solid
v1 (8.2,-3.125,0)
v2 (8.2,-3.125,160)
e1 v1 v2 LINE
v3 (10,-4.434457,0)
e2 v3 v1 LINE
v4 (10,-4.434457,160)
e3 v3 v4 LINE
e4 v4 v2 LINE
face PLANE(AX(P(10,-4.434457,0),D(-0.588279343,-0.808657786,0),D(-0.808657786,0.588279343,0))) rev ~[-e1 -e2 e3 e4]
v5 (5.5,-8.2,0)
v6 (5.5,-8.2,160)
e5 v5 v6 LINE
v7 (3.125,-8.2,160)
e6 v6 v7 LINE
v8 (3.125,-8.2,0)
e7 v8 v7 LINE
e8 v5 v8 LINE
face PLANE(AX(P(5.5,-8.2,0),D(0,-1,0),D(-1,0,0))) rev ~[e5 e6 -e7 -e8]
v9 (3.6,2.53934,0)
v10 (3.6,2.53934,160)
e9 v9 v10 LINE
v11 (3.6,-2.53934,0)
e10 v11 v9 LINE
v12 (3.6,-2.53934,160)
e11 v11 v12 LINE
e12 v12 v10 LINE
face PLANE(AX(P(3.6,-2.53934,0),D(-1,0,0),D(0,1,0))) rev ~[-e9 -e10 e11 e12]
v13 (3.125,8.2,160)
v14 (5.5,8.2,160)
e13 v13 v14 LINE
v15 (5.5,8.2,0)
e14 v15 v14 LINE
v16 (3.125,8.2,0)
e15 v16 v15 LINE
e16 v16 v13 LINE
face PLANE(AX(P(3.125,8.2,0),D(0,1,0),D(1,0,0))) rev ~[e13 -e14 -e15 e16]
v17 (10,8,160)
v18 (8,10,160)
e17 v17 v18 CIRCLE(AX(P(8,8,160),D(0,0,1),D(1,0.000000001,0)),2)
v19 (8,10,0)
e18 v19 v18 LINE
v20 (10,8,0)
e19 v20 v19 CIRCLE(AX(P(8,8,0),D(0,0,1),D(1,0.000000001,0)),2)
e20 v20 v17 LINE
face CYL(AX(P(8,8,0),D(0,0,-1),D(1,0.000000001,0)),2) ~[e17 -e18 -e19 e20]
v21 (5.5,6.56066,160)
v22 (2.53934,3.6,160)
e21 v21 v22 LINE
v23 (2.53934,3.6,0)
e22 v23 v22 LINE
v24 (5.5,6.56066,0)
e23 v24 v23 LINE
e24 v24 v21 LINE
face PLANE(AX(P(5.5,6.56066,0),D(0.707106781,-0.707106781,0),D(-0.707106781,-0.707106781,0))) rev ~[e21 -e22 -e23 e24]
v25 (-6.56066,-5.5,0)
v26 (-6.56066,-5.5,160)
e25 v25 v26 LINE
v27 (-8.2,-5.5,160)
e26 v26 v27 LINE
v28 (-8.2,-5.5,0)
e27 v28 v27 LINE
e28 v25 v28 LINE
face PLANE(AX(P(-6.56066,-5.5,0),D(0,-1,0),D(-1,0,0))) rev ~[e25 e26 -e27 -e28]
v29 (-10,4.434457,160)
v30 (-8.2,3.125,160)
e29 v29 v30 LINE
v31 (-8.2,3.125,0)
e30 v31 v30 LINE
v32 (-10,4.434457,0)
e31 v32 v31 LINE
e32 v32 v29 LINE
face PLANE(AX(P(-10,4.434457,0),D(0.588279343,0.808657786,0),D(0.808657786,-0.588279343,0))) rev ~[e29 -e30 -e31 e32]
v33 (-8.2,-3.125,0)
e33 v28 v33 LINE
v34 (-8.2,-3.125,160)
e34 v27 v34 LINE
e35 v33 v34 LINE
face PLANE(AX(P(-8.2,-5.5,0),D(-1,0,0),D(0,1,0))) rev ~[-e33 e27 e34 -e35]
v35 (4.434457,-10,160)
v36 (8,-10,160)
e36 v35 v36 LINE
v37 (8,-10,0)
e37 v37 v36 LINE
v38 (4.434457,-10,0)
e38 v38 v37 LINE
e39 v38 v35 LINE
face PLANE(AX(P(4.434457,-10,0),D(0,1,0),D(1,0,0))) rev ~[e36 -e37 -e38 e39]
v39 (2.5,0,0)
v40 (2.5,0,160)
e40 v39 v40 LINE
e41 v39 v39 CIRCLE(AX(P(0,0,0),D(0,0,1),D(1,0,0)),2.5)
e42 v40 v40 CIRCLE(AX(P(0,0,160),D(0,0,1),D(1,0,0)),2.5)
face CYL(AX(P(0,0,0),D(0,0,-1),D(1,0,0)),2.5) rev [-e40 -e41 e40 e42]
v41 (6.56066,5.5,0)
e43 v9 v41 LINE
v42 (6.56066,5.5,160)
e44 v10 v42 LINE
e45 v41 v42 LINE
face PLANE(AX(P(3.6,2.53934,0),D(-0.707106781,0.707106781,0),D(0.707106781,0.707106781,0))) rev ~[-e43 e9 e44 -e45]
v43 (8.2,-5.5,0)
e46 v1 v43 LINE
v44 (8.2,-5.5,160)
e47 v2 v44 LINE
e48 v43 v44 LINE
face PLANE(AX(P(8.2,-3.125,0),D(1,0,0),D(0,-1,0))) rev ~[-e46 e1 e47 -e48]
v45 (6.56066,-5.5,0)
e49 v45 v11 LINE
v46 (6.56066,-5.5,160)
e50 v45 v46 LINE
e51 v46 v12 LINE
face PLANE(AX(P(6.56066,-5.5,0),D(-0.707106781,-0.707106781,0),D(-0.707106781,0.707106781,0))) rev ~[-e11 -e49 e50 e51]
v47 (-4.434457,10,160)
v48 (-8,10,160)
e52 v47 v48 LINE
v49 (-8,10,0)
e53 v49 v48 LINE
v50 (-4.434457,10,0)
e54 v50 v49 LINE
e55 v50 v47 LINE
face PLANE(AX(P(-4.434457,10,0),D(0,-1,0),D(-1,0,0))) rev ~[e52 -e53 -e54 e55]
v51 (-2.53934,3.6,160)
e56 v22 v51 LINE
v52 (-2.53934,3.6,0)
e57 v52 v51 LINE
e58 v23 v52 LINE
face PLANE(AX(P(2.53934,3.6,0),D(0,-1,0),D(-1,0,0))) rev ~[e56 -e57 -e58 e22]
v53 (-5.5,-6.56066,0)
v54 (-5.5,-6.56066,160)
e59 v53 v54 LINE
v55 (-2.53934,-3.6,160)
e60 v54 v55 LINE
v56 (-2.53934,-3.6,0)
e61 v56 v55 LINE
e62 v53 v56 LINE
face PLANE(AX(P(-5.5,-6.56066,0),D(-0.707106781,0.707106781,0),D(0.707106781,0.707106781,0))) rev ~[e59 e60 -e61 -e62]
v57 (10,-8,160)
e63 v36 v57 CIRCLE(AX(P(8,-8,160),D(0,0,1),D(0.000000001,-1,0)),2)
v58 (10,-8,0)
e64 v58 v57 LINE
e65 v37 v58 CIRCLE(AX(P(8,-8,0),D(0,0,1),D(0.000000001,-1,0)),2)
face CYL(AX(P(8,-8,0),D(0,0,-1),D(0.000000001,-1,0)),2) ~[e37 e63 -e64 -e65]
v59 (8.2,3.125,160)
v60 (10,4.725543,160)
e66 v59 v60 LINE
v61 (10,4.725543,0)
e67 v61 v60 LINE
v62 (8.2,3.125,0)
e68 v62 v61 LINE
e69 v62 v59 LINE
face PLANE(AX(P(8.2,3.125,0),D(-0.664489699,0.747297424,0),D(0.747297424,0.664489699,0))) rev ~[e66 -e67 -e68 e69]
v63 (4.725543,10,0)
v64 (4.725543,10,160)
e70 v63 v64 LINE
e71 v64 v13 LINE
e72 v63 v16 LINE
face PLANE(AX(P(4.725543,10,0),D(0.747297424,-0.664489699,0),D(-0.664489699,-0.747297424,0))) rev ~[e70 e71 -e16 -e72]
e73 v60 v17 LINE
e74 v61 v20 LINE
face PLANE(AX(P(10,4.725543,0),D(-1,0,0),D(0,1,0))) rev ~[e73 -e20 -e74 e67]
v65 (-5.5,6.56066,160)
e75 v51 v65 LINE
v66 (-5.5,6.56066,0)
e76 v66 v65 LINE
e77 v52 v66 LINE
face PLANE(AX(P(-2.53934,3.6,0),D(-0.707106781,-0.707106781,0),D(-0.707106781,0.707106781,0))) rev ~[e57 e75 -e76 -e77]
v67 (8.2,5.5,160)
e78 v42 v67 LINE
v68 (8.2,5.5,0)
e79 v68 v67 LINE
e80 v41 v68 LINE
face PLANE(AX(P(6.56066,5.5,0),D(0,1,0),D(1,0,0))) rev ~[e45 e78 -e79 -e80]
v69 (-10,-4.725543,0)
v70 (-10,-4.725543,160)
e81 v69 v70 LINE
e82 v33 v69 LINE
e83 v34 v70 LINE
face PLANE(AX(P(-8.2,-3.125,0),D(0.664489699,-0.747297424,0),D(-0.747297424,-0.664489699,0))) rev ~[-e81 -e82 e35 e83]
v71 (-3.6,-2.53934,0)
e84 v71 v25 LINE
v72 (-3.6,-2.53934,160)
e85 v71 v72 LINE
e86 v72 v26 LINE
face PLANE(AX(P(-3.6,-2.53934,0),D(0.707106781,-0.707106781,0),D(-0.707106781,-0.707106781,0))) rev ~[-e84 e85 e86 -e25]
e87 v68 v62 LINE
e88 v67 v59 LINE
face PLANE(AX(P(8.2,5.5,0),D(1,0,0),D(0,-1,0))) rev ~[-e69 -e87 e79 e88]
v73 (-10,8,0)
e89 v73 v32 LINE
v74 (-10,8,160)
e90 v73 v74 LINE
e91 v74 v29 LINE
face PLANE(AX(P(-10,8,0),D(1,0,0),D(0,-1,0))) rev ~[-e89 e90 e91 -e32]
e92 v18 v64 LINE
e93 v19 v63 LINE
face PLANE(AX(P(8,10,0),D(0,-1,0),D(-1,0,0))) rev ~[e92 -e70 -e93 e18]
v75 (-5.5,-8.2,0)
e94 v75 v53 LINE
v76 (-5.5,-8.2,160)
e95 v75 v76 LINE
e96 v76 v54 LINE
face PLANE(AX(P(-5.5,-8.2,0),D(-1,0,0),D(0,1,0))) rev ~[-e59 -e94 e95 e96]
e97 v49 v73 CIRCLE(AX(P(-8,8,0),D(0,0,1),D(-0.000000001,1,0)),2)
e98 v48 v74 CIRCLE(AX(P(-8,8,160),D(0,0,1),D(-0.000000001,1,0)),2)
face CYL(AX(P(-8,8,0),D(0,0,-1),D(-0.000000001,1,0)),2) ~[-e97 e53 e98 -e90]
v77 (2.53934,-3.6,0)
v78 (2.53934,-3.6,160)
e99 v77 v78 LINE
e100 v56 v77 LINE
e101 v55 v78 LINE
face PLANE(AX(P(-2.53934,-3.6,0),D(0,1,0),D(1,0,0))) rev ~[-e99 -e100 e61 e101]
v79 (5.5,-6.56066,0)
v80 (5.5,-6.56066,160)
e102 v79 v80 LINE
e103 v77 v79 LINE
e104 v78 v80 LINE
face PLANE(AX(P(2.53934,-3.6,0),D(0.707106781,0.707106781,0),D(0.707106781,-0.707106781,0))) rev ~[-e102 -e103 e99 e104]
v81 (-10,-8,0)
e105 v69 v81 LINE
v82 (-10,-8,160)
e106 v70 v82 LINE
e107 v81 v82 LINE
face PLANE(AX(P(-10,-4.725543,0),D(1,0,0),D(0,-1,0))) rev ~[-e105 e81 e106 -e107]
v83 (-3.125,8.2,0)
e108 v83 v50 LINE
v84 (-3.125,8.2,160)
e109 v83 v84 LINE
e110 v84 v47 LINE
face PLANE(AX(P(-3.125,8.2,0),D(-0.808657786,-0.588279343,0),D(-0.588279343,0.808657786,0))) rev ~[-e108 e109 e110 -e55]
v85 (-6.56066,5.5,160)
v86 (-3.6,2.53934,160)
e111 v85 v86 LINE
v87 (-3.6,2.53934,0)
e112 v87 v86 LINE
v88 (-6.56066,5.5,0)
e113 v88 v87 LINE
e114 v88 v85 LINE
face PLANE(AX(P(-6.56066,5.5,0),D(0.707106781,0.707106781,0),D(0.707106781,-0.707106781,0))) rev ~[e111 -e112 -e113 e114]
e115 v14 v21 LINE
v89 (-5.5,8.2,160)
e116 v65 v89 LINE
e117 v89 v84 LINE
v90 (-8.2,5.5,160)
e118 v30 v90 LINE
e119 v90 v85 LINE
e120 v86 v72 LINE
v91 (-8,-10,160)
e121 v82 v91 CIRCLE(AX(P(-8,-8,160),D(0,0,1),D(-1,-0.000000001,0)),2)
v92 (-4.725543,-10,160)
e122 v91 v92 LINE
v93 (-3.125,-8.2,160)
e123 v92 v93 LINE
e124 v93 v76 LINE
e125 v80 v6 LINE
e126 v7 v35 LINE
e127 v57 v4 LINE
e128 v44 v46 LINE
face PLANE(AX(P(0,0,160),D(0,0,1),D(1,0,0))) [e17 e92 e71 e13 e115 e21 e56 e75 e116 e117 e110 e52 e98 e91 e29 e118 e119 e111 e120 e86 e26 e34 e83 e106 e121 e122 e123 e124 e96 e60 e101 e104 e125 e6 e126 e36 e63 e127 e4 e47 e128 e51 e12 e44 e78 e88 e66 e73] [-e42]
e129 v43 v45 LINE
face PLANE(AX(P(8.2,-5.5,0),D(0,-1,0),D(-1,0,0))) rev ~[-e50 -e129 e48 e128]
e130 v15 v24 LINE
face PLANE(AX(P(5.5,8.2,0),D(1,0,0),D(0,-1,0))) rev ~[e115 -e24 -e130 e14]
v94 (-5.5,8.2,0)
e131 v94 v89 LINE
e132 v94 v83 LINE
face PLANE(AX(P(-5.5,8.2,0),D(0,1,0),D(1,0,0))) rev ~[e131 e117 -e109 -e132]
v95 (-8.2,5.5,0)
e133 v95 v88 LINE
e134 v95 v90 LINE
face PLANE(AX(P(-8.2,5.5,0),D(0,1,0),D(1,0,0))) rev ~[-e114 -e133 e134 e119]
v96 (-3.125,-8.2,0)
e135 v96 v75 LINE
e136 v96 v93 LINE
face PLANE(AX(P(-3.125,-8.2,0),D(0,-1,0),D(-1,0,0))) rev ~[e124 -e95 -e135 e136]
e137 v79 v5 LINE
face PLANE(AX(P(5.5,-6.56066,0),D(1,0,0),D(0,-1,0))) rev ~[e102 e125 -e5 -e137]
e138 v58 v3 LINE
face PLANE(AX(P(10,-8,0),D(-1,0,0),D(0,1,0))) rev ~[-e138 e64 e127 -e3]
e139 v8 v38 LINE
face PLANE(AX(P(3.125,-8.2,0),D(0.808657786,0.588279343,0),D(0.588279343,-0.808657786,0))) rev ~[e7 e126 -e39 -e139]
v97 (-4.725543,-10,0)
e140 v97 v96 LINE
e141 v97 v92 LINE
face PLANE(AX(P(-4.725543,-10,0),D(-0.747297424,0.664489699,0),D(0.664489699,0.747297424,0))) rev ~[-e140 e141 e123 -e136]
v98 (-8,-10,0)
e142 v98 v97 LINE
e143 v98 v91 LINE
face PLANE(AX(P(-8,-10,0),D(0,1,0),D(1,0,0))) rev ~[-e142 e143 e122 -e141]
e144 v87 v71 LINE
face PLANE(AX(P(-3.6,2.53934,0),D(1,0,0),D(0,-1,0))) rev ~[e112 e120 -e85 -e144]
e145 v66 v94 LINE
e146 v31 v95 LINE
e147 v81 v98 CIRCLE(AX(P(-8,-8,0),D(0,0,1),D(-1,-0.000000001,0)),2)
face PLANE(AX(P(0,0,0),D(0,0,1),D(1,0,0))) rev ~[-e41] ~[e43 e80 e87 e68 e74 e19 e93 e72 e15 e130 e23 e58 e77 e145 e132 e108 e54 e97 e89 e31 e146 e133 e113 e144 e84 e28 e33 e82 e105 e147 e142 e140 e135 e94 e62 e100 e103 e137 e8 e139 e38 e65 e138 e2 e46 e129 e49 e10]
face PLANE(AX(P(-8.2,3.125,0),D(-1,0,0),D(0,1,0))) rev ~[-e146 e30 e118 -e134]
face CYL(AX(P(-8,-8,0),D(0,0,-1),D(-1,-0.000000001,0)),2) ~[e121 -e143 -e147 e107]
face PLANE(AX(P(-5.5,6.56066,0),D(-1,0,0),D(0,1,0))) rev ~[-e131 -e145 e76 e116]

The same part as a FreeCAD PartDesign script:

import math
import FreeCAD as App
import Part
import Sketcher

V = App.Vector
Q = App.Units.Quantity

doc = App.newDocument("Part")
body = doc.addObject("PartDesign::Body", "Body")

# Sketch on XY plane
sketch1 = doc.addObject("Sketcher::SketchObject", "Sketch")
body.addObject(sketch1)
sketch1.AttachmentSupport = (doc.XY_Plane, [""])
sketch1.MapMode = "FlatFace"
sketch1.addGeometry([
    Part.LineSegment(V(-4.7, -10, 0), V(-3.1, -8.2, 0)),  # 0
    Part.LineSegment(V(-3.1, -8.2, 0), V(-5.5, -8.2, 0)),  # 1
    Part.LineSegment(V(-5.5, -8.2, 0), V(-5.5, -6.6, 0)),  # 2
    Part.LineSegment(V(-5.5, -6.6, 0), V(-2.5, -3.6, 0)),  # 3
    Part.LineSegment(V(-2.5, -3.6, 0), V(2.5, -3.6, 0)),  # 4
    Part.LineSegment(V(2.5, -3.6, 0), V(5.5, -6.6, 0)),  # 5
    Part.LineSegment(V(5.5, -6.6, 0), V(5.5, -8.2, 0)),  # 6
    Part.LineSegment(V(5.5, -8.2, 0), V(3.1, -8.2, 0)),  # 7
    Part.LineSegment(V(3.1, -8.2, 0), V(4.4, -10, 0)),  # 8
    Part.LineSegment(V(4.4, -10, 0), V(8, -10, 0)),  # 9
    Part.ArcOfCircle(Part.Circle(V(8, -8, 0), V(0, 0, 1), 2), math.radians(-90), math.radians(0)),  # 10
    Part.LineSegment(V(10, -8, 0), V(10, -4.4, 0)),  # 11
    Part.LineSegment(V(10, -4.4, 0), V(8.2, -3.1, 0)),  # 12
    Part.LineSegment(V(8.2, -3.1, 0), V(8.2, -5.5, 0)),  # 13
    Part.LineSegment(V(8.2, -5.5, 0), V(6.6, -5.5, 0)),  # 14
    Part.LineSegment(V(6.6, -5.5, 0), V(3.6, -2.5, 0)),  # 15
    Part.LineSegment(V(3.6, -2.5, 0), V(3.6, 2.5, 0)),  # 16
    Part.LineSegment(V(3.6, 2.5, 0), V(6.6, 5.5, 0)),  # 17
    Part.LineSegment(V(6.6, 5.5, 0), V(8.2, 5.5, 0)),  # 18
    Part.LineSegment(V(8.2, 5.5, 0), V(8.2, 3.1, 0)),  # 19
    Part.LineSegment(V(8.2, 3.1, 0), V(10, 4.7, 0)),  # 20
    Part.LineSegment(V(10, 4.7, 0), V(10, 8, 0)),  # 21
    Part.ArcOfCircle(Part.Circle(V(8, 8, 0), V(0, 0, 1), 2), math.radians(0), math.radians(90)),  # 22
    Part.LineSegment(V(8, 10, 0), V(4.7, 10, 0)),  # 23
    Part.LineSegment(V(4.7, 10, 0), V(3.1, 8.2, 0)),  # 24
    Part.LineSegment(V(3.1, 8.2, 0), V(5.5, 8.2, 0)),  # 25
    Part.LineSegment(V(5.5, 8.2, 0), V(5.5, 6.6, 0)),  # 26
    Part.LineSegment(V(5.5, 6.6, 0), V(2.5, 3.6, 0)),  # 27
    Part.LineSegment(V(2.5, 3.6, 0), V(-2.5, 3.6, 0)),  # 28
    Part.LineSegment(V(-2.5, 3.6, 0), V(-5.5, 6.6, 0)),  # 29
    Part.LineSegment(V(-5.5, 6.6, 0), V(-5.5, 8.2, 0)),  # 30
    Part.LineSegment(V(-5.5, 8.2, 0), V(-3.1, 8.2, 0)),  # 31
    Part.LineSegment(V(-3.1, 8.2, 0), V(-4.4, 10, 0)),  # 32
    Part.LineSegment(V(-4.4, 10, 0), V(-8, 10, 0)),  # 33
    Part.ArcOfCircle(Part.Circle(V(-8, 8, 0), V(0, 0, 1), 2), math.radians(90), math.radians(180)),  # 34
    Part.LineSegment(V(-10, 8, 0), V(-10, 4.4, 0)),  # 35
    Part.LineSegment(V(-10, 4.4, 0), V(-8.2, 3.1, 0)),  # 36
    Part.LineSegment(V(-8.2, 3.1, 0), V(-8.2, 5.5, 0)),  # 37
    Part.LineSegment(V(-8.2, 5.5, 0), V(-6.6, 5.5, 0)),  # 38
    Part.LineSegment(V(-6.6, 5.5, 0), V(-3.6, 2.5, 0)),  # 39
    Part.LineSegment(V(-3.6, 2.5, 0), V(-3.6, -2.5, 0)),  # 40
    Part.LineSegment(V(-3.6, -2.5, 0), V(-6.6, -5.5, 0)),  # 41
    Part.LineSegment(V(-6.6, -5.5, 0), V(-8.2, -5.5, 0)),  # 42
    Part.LineSegment(V(-8.2, -5.5, 0), V(-8.2, -3.1, 0)),  # 43
    Part.LineSegment(V(-8.2, -3.1, 0), V(-10, -4.7, 0)),  # 44
    Part.LineSegment(V(-10, -4.7, 0), V(-10, -8, 0)),  # 45
    Part.ArcOfCircle(Part.Circle(V(-8, -8, 0), V(0, 0, 1), 2), math.radians(-180), math.radians(-90)),  # 46
    Part.LineSegment(V(-8, -10, 0), V(-4.7, -10, 0)),  # 47
    Part.Circle(V(0, 0, 0), V(0, 0, 1), 2.5),  # 48
], False)
sketch1.addConstraint([
    Sketcher.Constraint("Coincident", 0, 2, 1, 1),
    Sketcher.Constraint("Coincident", 1, 2, 2, 1),
    Sketcher.Constraint("Coincident", 2, 2, 3, 1),
    Sketcher.Constraint("Coincident", 3, 2, 4, 1),
    Sketcher.Constraint("Coincident", 4, 2, 5, 1),
    Sketcher.Constraint("Coincident", 5, 2, 6, 1),
    Sketcher.Constraint("Coincident", 6, 2, 7, 1),
    Sketcher.Constraint("Coincident", 7, 2, 8, 1),
    Sketcher.Constraint("Coincident", 8, 2, 9, 1),
    Sketcher.Constraint("Tangent", 9, 2, 10, 1),
    Sketcher.Constraint("Tangent", 10, 2, 11, 1),
    Sketcher.Constraint("Coincident", 11, 2, 12, 1),
    Sketcher.Constraint("Coincident", 12, 2, 13, 1),
    Sketcher.Constraint("Coincident", 13, 2, 14, 1),
    Sketcher.Constraint("Coincident", 14, 2, 15, 1),
    Sketcher.Constraint("Coincident", 15, 2, 16, 1),
    Sketcher.Constraint("Coincident", 16, 2, 17, 1),
    Sketcher.Constraint("Coincident", 17, 2, 18, 1),
    Sketcher.Constraint("Coincident", 18, 2, 19, 1),
    Sketcher.Constraint("Coincident", 19, 2, 20, 1),
    Sketcher.Constraint("Coincident", 20, 2, 21, 1),
    Sketcher.Constraint("Tangent", 21, 2, 22, 1),
    Sketcher.Constraint("Tangent", 22, 2, 23, 1),
    Sketcher.Constraint("Coincident", 23, 2, 24, 1),
    Sketcher.Constraint("Coincident", 24, 2, 25, 1),
    Sketcher.Constraint("Coincident", 25, 2, 26, 1),
    Sketcher.Constraint("Coincident", 26, 2, 27, 1),
    Sketcher.Constraint("Coincident", 27, 2, 28, 1),
    Sketcher.Constraint("Coincident", 28, 2, 29, 1),
    Sketcher.Constraint("Coincident", 29, 2, 30, 1),
    Sketcher.Constraint("Coincident", 30, 2, 31, 1),
    Sketcher.Constraint("Coincident", 31, 2, 32, 1),
    Sketcher.Constraint("Coincident", 32, 2, 33, 1),
    Sketcher.Constraint("Tangent", 33, 2, 34, 1),
    Sketcher.Constraint("Tangent", 34, 2, 35, 1),
    Sketcher.Constraint("Coincident", 35, 2, 36, 1),
    Sketcher.Constraint("Coincident", 36, 2, 37, 1),
    Sketcher.Constraint("Coincident", 37, 2, 38, 1),
    Sketcher.Constraint("Coincident", 38, 2, 39, 1),
    Sketcher.Constraint("Coincident", 39, 2, 40, 1),
    Sketcher.Constraint("Coincident", 40, 2, 41, 1),
    Sketcher.Constraint("Coincident", 41, 2, 42, 1),
    Sketcher.Constraint("Coincident", 42, 2, 43, 1),
    Sketcher.Constraint("Coincident", 43, 2, 44, 1),
    Sketcher.Constraint("Coincident", 44, 2, 45, 1),
    Sketcher.Constraint("Tangent", 45, 2, 46, 1),
    Sketcher.Constraint("Tangent", 46, 2, 47, 1),
    Sketcher.Constraint("Coincident", 47, 2, 0, 1),
    Sketcher.Constraint("Horizontal", 1),
    Sketcher.Constraint("Vertical", 2),
    Sketcher.Constraint("Horizontal", 4),
    Sketcher.Constraint("Vertical", 6),
    Sketcher.Constraint("Horizontal", 7),
    Sketcher.Constraint("Horizontal", 9),
    Sketcher.Constraint("Vertical", 11),
    Sketcher.Constraint("Vertical", 13),
    Sketcher.Constraint("Horizontal", 14),
    Sketcher.Constraint("Vertical", 16),
    Sketcher.Constraint("Horizontal", 18),
    Sketcher.Constraint("Vertical", 19),
    Sketcher.Constraint("Vertical", 21),
    Sketcher.Constraint("Horizontal", 23),
    Sketcher.Constraint("Horizontal", 25),
    Sketcher.Constraint("Vertical", 26),
    Sketcher.Constraint("Horizontal", 28),
    Sketcher.Constraint("Vertical", 30),
    Sketcher.Constraint("Horizontal", 31),
    Sketcher.Constraint("Horizontal", 33),
    Sketcher.Constraint("Vertical", 35),
    Sketcher.Constraint("Vertical", 37),
    Sketcher.Constraint("Horizontal", 38),
    Sketcher.Constraint("Vertical", 40),
    Sketcher.Constraint("Horizontal", 42),
    Sketcher.Constraint("Vertical", 43),
    Sketcher.Constraint("Vertical", 45),
    Sketcher.Constraint("Horizontal", 47),
    Sketcher.Constraint("Coincident", 48, 3, -1, 1),
    Sketcher.Constraint("Equal", 10, 22),
    Sketcher.Constraint("Equal", 22, 34),
    Sketcher.Constraint("Equal", 34, 46),
    Sketcher.Constraint("Symmetric", 10, 3, 34, 3, -1, 1),
    Sketcher.Constraint("Symmetric", 22, 3, 46, 3, -1, 1),
    Sketcher.Constraint("Symmetric", 0, 2, 24, 2, -1, 1),
    Sketcher.Constraint("Symmetric", 2, 2, 26, 2, -1, 1),
    Sketcher.Constraint("Symmetric", 3, 2, 27, 2, -1, 1),
    Sketcher.Constraint("Symmetric", 5, 2, 29, 2, -1, 1),
    Sketcher.Constraint("Symmetric", 7, 2, 31, 2, -1, 1),
    Sketcher.Constraint("Symmetric", 12, 2, 36, 2, -1, 1),
    Sketcher.Constraint("Symmetric", 14, 2, 38, 2, -1, 1),
    Sketcher.Constraint("Symmetric", 15, 2, 39, 2, -1, 1),
    Sketcher.Constraint("Symmetric", 17, 2, 41, 2, -1, 1),
    Sketcher.Constraint("Symmetric", 19, 2, 43, 2, -1, 1),
    Sketcher.Constraint("Symmetric", 22, 3, 34, 3, -2),
    Sketcher.Constraint("Symmetric", 2, 2, 5, 2, -2),
    Sketcher.Constraint("Symmetric", 0, 2, 7, 2, -2),
    Sketcher.Constraint("Symmetric", 19, 2, 36, 2, -2),
    Sketcher.Constraint("Symmetric", 17, 2, 38, 2, -2),
    Sketcher.Constraint("Perpendicular", 3, 5),
    Sketcher.Constraint("Parallel", 5, 15),
    Sketcher.Constraint("Perpendicular", 15, 17),
    Sketcher.Constraint("Parallel", 0, 24),
    Sketcher.Constraint("Perpendicular", 27, 29),
    Sketcher.Constraint("Parallel", 8, 32),
    Sketcher.Constraint("Parallel", 12, 36),
    Sketcher.Constraint("Perpendicular", 39, 41),
    Sketcher.Constraint("Parallel", 20, 44),
    Sketcher.Constraint("Horizontal", 16, 2, 39, 2),
    Sketcher.Constraint("Equal", 42, 2),
    Sketcher.Constraint("Equal", 33, 11),
    Sketcher.Constraint("Equal", 31, 13),
    Sketcher.Constraint("Equal", 28, 16),
    Sketcher.Constraint("Equal", 47, 21),
    Sketcher.Constraint("Equal", 8, 12),
    Sketcher.Constraint("Equal", 5, 15),
    Sketcher.Constraint("Equal", 0, 20),
    Sketcher.Constraint("Diameter", 48, Q("5 mm")),
    Sketcher.Constraint("Radius", 10, Q("2 mm")),
    Sketcher.Constraint("DistanceX", -1, 1, 10, 3, Q("8 mm")),
    Sketcher.Constraint("DistanceY", 0, 2, -1, 1, Q("8.2 mm")),
    Sketcher.Constraint("DistanceX", 1, 2, -1, 1, Q("5.5 mm")),
    Sketcher.Constraint("DistanceY", 3, 2, -1, 1, Q("3.6 mm")),
    Sketcher.Constraint("DistanceX", 1, 2, 1, 1, Q("2.375 mm")),
    Sketcher.Constraint("DistanceX", 4, 1, 4, 2, Q("5.07868 mm")),
    Sketcher.Constraint("Distance", 0, Q("2.40868 mm")),
    Sketcher.Constraint("Distance", 8, Q("2.225911 mm")),
])
pad1 = doc.addObject("PartDesign::Pad", "Pad")
body.addObject(pad1)
pad1.Profile = sketch1
pad1.Length = 160

doc.recompute()
